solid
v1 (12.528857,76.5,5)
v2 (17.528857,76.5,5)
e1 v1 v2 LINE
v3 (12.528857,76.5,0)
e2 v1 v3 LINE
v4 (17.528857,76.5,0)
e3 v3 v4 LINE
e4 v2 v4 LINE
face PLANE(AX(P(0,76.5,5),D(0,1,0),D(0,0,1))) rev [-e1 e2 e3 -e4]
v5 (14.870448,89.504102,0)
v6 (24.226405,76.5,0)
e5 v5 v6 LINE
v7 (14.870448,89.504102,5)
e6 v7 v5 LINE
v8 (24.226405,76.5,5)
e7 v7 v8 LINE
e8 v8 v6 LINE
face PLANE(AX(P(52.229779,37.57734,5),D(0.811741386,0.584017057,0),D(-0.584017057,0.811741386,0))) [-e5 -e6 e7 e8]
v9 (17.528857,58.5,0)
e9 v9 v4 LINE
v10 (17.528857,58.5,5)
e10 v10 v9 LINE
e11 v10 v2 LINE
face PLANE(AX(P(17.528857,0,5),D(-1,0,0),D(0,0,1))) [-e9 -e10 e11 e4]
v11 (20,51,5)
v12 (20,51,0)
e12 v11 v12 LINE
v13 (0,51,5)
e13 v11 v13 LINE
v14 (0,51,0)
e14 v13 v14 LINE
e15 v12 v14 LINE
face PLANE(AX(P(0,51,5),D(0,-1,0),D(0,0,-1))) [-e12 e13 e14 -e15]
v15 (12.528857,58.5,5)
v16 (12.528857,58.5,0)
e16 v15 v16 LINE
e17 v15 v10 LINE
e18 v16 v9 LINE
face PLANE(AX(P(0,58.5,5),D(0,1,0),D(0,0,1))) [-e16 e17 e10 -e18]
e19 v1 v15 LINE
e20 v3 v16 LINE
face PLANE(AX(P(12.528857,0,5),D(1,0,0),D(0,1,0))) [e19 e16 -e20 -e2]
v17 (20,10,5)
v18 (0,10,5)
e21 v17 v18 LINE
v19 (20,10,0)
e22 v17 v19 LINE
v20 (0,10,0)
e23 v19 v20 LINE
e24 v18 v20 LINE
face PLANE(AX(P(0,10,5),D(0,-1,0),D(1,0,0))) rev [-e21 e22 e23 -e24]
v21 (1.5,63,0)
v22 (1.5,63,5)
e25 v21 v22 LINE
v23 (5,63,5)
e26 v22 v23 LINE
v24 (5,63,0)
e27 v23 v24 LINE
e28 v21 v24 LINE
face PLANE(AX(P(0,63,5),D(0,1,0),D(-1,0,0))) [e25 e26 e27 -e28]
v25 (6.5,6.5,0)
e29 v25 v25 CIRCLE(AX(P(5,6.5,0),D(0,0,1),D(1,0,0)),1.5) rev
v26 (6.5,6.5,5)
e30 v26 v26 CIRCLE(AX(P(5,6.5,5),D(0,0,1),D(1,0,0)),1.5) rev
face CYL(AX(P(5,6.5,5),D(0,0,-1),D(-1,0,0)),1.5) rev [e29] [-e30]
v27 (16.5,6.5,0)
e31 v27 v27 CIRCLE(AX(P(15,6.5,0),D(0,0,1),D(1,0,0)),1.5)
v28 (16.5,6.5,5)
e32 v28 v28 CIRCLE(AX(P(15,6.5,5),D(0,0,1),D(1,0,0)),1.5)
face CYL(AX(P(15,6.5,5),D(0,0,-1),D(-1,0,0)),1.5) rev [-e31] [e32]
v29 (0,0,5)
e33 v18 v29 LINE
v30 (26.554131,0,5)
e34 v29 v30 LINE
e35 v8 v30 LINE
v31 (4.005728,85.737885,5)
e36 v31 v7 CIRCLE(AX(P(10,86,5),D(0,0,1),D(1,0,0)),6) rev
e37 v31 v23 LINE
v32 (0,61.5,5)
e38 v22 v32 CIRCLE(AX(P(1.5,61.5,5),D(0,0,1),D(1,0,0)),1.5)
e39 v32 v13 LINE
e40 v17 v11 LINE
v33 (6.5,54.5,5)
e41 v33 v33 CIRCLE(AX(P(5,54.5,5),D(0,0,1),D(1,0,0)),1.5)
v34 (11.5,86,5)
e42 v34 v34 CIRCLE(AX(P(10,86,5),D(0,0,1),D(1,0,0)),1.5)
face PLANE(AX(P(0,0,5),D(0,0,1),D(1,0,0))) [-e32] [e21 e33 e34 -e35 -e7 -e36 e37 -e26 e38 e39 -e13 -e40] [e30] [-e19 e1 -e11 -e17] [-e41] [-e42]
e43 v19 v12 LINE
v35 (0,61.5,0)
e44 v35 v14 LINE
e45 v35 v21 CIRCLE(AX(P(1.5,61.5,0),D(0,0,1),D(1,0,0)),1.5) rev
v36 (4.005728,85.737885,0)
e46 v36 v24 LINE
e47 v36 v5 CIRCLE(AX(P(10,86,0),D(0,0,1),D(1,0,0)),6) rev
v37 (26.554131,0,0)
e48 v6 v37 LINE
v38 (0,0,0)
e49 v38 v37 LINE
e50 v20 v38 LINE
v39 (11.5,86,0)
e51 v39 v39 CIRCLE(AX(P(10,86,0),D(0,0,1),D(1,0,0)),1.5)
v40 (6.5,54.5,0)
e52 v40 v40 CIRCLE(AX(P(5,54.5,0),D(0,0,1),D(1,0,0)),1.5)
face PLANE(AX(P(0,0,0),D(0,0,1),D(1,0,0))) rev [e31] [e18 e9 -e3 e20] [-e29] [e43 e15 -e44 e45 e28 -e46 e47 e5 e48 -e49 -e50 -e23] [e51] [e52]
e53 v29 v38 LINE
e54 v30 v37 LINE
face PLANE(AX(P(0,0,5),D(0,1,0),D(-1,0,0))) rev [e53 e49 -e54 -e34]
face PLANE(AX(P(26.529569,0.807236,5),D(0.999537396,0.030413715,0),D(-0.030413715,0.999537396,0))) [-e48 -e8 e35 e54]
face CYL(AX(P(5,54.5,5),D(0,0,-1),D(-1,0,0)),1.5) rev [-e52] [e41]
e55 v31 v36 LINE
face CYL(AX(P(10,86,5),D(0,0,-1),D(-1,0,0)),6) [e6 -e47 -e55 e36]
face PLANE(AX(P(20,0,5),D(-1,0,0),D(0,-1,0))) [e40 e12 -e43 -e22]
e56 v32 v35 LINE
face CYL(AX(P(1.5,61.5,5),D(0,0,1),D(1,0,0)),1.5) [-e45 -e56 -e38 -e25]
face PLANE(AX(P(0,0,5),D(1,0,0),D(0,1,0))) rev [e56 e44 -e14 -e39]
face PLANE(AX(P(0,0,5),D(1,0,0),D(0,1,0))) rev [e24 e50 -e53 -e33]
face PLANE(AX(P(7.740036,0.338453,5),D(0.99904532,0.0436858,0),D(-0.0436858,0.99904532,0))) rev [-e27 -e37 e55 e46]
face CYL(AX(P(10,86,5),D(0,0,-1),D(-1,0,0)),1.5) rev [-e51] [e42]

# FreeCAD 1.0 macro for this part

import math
import FreeCAD as App
import Part
import Sketcher

V = App.Vector
Q = App.Units.Quantity


def edges_at(feature, points):
    """Names of the edges that pass closest to the given points."""
    edges = feature.Shape.Edges
    near = lambda p: min(range(len(edges)), key=lambda i: edges[i].distToShape(Part.Vertex(*p))[0])
    return sorted({f"Edge{near(p) + 1}" for p in points})


def add_polygon(sketch, points):
    """Adds a closed chain of lines whose ends are joined by coincident constraints."""
    first, n = sketch.GeometryCount, len(points)
    for a, b in zip(points, points[1:] + points[:1]):
        sketch.addGeometry(Part.LineSegment(App.Vector(*a, 0), App.Vector(*b, 0)), False)
    for i in range(n):
        sketch.addConstraint(Sketcher.Constraint("Coincident", first + i, 2, first + (i + 1) % n, 1))

doc = App.newDocument("Part")
body = doc.addObject("PartDesign::Body", "Body")

sketch1 = body.newObject("Sketcher::SketchObject", "Sketch")
sketch1.AttachmentSupport = (doc.getObject("XY_Plane"), [""])
sketch1.MapMode = "FlatFace"
sketch1.addGeometry(Part.LineSegment(V(0, 10, 0), V(0, 0, 0)), False)
sketch1.addGeometry(Part.LineSegment(V(0, 0, 0), V(26.6, 0, 0)), False)
sketch1.addGeometry(Part.LineSegment(V(26.6, 0, 0), V(24.2, 76.5, 0)), False)
sketch1.addGeometry(Part.LineSegment(V(24.2, 76.5, 0), V(14.9, 89.5, 0)), False)
sketch1.addGeometry(Part.ArcOfCircle(Part.Circle(V(10, 86, 0), V(0, 0, 1), 6), math.radians(36), math.radians(183)), False)
sketch1.addGeometry(Part.LineSegment(V(4, 85.7, 0), V(5, 63, 0)), False)
sketch1.addGeometry(Part.LineSegment(V(5, 63, 0), V(0, 63, 0)), False)
sketch1.addGeometry(Part.LineSegment(V(0, 63, 0), V(0, 51, 0)), False)
sketch1.addGeometry(Part.LineSegment(V(0, 51, 0), V(20, 51, 0)), False)
sketch1.addGeometry(Part.LineSegment(V(20, 51, 0), V(20, 10, 0)), False)
sketch1.addGeometry(Part.LineSegment(V(20, 10, 0), V(0, 10, 0)), False)
sketch1.addGeometry(Part.Circle(V(5, 6.5, 0), V(0, 0, 1), 1.5), False)
sketch1.addGeometry(Part.Circle(V(15, 6.5, 0), V(0, 0, 1), 1.5), False)
sketch1.addGeometry(Part.Circle(V(5, 54.5, 0), V(0, 0, 1), 1.5), False)
sketch1.addGeometry(Part.Circle(V(10, 86, 0), V(0, 0, 1), 1.5), False)
add_polygon(sketch1, [(17.5, 58.5), (12.5, 58.5), (12.5, 76.5), (17.5, 76.5)])
sketch1.addConstraint([
    Sketcher.Constraint("Coincident", 0, 2, 1, 1),
    Sketcher.Constraint("Coincident", 1, 2, 2, 1),
    Sketcher.Constraint("Coincident", 2, 2, 3, 1),
    Sketcher.Constraint("Tangent", 3, 2, 4, 1),
    Sketcher.Constraint("Tangent", 4, 2, 5, 1),
    Sketcher.Constraint("Coincident", 5, 2, 6, 1),
    Sketcher.Constraint("Coincident", 6, 2, 7, 1),
    Sketcher.Constraint("Coincident", 7, 2, 8, 1),
    Sketcher.Constraint("Coincident", 8, 2, 9, 1),
    Sketcher.Constraint("Coincident", 9, 2, 10, 1),
    Sketcher.Constraint("Coincident", 10, 2, 0, 1),
    Sketcher.Constraint("Vertical", 0),
    Sketcher.Constraint("Horizontal", 1),
    Sketcher.Constraint("Horizontal", 6),
    Sketcher.Constraint("Vertical", 7),
    Sketcher.Constraint("Horizontal", 8),
    Sketcher.Constraint("Vertical", 9),
    Sketcher.Constraint("Horizontal", 10),
    Sketcher.Constraint("Horizontal", 15),
    Sketcher.Constraint("Vertical", 16),
    Sketcher.Constraint("Horizontal", 17),
    Sketcher.Constraint("Vertical", 18),
    Sketcher.Constraint("Coincident", 0, 2, -1, 1),
    Sketcher.Constraint("Coincident", 14, 3, 4, 3),
    Sketcher.Constraint("Equal", 11, 12),
    Sketcher.Constraint("Equal", 12, 13),
    Sketcher.Constraint("Equal", 13, 14),
    Sketcher.Constraint("PointOnObject", 6, 2, -2),
    Sketcher.Constraint("Horizontal", 11, 3, 12, 3),
    Sketcher.Constraint("Horizontal", 2, 2, 16, 2),
    Sketcher.Constraint("Vertical", 11, 3, 13, 3),
    Sketcher.Constraint("Vertical", 13, 3, 5, 2),
    Sketcher.Constraint("Equal", 6, 15),
    Sketcher.Constraint("Diameter", 11, Q("3 mm")),
    Sketcher.Constraint("Radius", 4, Q("6 mm")),
    Sketcher.Constraint("DistanceX", 6, 2, 6, 1, Q("5 mm")),
    Sketcher.Constraint("DistanceX", 8, 1, 8, 2, Q("20 mm")),
    Sketcher.Constraint("DistanceY", 0, 2, 0, 1, Q("10 mm")),
    Sketcher.Constraint("DistanceY", 7, 2, 7, 1, Q("12 mm")),
    Sketcher.Constraint("DistanceY", 9, 2, 9, 1, Q("41 mm")),
    Sketcher.Constraint("DistanceY", 16, 1, 16, 2, Q("18 mm")),
    Sketcher.Constraint("DistanceX", -1, 1, 4, 3, Q("10 mm")),
    Sketcher.Constraint("DistanceY", -1, 1, 4, 3, Q("86 mm")),
    Sketcher.Constraint("DistanceX", -1, 1, 12, 3, Q("15 mm")),
    Sketcher.Constraint("DistanceY", 11, 3, 13, 3, Q("48 mm")),
    Sketcher.Constraint("DistanceY", 13, 3, 2, 2, Q("22 mm")),
    Sketcher.Constraint("DistanceY", -1, 1, 11, 3, Q("6.5 mm")),
    Sketcher.Constraint("DistanceX", 1, 1, 1, 2, Q("26.554131 mm")),
    Sketcher.Constraint("DistanceX", -1, 1, 3, 2, Q("14.870448 mm")),
    Sketcher.Constraint("DistanceX", 16, 2, 2, 2, Q("11.697549 mm")),
])
pad1 = body.newObject("PartDesign::Pad", "Pad")
pad1.Profile = sketch1
pad1.Length = 5
doc.recompute()

fillet = body.newObject("PartDesign::Fillet", "Fillet")
fillet.Base = (pad1, edges_at(pad1, [(0, 63, 2.5)]))
fillet.Radius = 1.5

doc.recompute()
